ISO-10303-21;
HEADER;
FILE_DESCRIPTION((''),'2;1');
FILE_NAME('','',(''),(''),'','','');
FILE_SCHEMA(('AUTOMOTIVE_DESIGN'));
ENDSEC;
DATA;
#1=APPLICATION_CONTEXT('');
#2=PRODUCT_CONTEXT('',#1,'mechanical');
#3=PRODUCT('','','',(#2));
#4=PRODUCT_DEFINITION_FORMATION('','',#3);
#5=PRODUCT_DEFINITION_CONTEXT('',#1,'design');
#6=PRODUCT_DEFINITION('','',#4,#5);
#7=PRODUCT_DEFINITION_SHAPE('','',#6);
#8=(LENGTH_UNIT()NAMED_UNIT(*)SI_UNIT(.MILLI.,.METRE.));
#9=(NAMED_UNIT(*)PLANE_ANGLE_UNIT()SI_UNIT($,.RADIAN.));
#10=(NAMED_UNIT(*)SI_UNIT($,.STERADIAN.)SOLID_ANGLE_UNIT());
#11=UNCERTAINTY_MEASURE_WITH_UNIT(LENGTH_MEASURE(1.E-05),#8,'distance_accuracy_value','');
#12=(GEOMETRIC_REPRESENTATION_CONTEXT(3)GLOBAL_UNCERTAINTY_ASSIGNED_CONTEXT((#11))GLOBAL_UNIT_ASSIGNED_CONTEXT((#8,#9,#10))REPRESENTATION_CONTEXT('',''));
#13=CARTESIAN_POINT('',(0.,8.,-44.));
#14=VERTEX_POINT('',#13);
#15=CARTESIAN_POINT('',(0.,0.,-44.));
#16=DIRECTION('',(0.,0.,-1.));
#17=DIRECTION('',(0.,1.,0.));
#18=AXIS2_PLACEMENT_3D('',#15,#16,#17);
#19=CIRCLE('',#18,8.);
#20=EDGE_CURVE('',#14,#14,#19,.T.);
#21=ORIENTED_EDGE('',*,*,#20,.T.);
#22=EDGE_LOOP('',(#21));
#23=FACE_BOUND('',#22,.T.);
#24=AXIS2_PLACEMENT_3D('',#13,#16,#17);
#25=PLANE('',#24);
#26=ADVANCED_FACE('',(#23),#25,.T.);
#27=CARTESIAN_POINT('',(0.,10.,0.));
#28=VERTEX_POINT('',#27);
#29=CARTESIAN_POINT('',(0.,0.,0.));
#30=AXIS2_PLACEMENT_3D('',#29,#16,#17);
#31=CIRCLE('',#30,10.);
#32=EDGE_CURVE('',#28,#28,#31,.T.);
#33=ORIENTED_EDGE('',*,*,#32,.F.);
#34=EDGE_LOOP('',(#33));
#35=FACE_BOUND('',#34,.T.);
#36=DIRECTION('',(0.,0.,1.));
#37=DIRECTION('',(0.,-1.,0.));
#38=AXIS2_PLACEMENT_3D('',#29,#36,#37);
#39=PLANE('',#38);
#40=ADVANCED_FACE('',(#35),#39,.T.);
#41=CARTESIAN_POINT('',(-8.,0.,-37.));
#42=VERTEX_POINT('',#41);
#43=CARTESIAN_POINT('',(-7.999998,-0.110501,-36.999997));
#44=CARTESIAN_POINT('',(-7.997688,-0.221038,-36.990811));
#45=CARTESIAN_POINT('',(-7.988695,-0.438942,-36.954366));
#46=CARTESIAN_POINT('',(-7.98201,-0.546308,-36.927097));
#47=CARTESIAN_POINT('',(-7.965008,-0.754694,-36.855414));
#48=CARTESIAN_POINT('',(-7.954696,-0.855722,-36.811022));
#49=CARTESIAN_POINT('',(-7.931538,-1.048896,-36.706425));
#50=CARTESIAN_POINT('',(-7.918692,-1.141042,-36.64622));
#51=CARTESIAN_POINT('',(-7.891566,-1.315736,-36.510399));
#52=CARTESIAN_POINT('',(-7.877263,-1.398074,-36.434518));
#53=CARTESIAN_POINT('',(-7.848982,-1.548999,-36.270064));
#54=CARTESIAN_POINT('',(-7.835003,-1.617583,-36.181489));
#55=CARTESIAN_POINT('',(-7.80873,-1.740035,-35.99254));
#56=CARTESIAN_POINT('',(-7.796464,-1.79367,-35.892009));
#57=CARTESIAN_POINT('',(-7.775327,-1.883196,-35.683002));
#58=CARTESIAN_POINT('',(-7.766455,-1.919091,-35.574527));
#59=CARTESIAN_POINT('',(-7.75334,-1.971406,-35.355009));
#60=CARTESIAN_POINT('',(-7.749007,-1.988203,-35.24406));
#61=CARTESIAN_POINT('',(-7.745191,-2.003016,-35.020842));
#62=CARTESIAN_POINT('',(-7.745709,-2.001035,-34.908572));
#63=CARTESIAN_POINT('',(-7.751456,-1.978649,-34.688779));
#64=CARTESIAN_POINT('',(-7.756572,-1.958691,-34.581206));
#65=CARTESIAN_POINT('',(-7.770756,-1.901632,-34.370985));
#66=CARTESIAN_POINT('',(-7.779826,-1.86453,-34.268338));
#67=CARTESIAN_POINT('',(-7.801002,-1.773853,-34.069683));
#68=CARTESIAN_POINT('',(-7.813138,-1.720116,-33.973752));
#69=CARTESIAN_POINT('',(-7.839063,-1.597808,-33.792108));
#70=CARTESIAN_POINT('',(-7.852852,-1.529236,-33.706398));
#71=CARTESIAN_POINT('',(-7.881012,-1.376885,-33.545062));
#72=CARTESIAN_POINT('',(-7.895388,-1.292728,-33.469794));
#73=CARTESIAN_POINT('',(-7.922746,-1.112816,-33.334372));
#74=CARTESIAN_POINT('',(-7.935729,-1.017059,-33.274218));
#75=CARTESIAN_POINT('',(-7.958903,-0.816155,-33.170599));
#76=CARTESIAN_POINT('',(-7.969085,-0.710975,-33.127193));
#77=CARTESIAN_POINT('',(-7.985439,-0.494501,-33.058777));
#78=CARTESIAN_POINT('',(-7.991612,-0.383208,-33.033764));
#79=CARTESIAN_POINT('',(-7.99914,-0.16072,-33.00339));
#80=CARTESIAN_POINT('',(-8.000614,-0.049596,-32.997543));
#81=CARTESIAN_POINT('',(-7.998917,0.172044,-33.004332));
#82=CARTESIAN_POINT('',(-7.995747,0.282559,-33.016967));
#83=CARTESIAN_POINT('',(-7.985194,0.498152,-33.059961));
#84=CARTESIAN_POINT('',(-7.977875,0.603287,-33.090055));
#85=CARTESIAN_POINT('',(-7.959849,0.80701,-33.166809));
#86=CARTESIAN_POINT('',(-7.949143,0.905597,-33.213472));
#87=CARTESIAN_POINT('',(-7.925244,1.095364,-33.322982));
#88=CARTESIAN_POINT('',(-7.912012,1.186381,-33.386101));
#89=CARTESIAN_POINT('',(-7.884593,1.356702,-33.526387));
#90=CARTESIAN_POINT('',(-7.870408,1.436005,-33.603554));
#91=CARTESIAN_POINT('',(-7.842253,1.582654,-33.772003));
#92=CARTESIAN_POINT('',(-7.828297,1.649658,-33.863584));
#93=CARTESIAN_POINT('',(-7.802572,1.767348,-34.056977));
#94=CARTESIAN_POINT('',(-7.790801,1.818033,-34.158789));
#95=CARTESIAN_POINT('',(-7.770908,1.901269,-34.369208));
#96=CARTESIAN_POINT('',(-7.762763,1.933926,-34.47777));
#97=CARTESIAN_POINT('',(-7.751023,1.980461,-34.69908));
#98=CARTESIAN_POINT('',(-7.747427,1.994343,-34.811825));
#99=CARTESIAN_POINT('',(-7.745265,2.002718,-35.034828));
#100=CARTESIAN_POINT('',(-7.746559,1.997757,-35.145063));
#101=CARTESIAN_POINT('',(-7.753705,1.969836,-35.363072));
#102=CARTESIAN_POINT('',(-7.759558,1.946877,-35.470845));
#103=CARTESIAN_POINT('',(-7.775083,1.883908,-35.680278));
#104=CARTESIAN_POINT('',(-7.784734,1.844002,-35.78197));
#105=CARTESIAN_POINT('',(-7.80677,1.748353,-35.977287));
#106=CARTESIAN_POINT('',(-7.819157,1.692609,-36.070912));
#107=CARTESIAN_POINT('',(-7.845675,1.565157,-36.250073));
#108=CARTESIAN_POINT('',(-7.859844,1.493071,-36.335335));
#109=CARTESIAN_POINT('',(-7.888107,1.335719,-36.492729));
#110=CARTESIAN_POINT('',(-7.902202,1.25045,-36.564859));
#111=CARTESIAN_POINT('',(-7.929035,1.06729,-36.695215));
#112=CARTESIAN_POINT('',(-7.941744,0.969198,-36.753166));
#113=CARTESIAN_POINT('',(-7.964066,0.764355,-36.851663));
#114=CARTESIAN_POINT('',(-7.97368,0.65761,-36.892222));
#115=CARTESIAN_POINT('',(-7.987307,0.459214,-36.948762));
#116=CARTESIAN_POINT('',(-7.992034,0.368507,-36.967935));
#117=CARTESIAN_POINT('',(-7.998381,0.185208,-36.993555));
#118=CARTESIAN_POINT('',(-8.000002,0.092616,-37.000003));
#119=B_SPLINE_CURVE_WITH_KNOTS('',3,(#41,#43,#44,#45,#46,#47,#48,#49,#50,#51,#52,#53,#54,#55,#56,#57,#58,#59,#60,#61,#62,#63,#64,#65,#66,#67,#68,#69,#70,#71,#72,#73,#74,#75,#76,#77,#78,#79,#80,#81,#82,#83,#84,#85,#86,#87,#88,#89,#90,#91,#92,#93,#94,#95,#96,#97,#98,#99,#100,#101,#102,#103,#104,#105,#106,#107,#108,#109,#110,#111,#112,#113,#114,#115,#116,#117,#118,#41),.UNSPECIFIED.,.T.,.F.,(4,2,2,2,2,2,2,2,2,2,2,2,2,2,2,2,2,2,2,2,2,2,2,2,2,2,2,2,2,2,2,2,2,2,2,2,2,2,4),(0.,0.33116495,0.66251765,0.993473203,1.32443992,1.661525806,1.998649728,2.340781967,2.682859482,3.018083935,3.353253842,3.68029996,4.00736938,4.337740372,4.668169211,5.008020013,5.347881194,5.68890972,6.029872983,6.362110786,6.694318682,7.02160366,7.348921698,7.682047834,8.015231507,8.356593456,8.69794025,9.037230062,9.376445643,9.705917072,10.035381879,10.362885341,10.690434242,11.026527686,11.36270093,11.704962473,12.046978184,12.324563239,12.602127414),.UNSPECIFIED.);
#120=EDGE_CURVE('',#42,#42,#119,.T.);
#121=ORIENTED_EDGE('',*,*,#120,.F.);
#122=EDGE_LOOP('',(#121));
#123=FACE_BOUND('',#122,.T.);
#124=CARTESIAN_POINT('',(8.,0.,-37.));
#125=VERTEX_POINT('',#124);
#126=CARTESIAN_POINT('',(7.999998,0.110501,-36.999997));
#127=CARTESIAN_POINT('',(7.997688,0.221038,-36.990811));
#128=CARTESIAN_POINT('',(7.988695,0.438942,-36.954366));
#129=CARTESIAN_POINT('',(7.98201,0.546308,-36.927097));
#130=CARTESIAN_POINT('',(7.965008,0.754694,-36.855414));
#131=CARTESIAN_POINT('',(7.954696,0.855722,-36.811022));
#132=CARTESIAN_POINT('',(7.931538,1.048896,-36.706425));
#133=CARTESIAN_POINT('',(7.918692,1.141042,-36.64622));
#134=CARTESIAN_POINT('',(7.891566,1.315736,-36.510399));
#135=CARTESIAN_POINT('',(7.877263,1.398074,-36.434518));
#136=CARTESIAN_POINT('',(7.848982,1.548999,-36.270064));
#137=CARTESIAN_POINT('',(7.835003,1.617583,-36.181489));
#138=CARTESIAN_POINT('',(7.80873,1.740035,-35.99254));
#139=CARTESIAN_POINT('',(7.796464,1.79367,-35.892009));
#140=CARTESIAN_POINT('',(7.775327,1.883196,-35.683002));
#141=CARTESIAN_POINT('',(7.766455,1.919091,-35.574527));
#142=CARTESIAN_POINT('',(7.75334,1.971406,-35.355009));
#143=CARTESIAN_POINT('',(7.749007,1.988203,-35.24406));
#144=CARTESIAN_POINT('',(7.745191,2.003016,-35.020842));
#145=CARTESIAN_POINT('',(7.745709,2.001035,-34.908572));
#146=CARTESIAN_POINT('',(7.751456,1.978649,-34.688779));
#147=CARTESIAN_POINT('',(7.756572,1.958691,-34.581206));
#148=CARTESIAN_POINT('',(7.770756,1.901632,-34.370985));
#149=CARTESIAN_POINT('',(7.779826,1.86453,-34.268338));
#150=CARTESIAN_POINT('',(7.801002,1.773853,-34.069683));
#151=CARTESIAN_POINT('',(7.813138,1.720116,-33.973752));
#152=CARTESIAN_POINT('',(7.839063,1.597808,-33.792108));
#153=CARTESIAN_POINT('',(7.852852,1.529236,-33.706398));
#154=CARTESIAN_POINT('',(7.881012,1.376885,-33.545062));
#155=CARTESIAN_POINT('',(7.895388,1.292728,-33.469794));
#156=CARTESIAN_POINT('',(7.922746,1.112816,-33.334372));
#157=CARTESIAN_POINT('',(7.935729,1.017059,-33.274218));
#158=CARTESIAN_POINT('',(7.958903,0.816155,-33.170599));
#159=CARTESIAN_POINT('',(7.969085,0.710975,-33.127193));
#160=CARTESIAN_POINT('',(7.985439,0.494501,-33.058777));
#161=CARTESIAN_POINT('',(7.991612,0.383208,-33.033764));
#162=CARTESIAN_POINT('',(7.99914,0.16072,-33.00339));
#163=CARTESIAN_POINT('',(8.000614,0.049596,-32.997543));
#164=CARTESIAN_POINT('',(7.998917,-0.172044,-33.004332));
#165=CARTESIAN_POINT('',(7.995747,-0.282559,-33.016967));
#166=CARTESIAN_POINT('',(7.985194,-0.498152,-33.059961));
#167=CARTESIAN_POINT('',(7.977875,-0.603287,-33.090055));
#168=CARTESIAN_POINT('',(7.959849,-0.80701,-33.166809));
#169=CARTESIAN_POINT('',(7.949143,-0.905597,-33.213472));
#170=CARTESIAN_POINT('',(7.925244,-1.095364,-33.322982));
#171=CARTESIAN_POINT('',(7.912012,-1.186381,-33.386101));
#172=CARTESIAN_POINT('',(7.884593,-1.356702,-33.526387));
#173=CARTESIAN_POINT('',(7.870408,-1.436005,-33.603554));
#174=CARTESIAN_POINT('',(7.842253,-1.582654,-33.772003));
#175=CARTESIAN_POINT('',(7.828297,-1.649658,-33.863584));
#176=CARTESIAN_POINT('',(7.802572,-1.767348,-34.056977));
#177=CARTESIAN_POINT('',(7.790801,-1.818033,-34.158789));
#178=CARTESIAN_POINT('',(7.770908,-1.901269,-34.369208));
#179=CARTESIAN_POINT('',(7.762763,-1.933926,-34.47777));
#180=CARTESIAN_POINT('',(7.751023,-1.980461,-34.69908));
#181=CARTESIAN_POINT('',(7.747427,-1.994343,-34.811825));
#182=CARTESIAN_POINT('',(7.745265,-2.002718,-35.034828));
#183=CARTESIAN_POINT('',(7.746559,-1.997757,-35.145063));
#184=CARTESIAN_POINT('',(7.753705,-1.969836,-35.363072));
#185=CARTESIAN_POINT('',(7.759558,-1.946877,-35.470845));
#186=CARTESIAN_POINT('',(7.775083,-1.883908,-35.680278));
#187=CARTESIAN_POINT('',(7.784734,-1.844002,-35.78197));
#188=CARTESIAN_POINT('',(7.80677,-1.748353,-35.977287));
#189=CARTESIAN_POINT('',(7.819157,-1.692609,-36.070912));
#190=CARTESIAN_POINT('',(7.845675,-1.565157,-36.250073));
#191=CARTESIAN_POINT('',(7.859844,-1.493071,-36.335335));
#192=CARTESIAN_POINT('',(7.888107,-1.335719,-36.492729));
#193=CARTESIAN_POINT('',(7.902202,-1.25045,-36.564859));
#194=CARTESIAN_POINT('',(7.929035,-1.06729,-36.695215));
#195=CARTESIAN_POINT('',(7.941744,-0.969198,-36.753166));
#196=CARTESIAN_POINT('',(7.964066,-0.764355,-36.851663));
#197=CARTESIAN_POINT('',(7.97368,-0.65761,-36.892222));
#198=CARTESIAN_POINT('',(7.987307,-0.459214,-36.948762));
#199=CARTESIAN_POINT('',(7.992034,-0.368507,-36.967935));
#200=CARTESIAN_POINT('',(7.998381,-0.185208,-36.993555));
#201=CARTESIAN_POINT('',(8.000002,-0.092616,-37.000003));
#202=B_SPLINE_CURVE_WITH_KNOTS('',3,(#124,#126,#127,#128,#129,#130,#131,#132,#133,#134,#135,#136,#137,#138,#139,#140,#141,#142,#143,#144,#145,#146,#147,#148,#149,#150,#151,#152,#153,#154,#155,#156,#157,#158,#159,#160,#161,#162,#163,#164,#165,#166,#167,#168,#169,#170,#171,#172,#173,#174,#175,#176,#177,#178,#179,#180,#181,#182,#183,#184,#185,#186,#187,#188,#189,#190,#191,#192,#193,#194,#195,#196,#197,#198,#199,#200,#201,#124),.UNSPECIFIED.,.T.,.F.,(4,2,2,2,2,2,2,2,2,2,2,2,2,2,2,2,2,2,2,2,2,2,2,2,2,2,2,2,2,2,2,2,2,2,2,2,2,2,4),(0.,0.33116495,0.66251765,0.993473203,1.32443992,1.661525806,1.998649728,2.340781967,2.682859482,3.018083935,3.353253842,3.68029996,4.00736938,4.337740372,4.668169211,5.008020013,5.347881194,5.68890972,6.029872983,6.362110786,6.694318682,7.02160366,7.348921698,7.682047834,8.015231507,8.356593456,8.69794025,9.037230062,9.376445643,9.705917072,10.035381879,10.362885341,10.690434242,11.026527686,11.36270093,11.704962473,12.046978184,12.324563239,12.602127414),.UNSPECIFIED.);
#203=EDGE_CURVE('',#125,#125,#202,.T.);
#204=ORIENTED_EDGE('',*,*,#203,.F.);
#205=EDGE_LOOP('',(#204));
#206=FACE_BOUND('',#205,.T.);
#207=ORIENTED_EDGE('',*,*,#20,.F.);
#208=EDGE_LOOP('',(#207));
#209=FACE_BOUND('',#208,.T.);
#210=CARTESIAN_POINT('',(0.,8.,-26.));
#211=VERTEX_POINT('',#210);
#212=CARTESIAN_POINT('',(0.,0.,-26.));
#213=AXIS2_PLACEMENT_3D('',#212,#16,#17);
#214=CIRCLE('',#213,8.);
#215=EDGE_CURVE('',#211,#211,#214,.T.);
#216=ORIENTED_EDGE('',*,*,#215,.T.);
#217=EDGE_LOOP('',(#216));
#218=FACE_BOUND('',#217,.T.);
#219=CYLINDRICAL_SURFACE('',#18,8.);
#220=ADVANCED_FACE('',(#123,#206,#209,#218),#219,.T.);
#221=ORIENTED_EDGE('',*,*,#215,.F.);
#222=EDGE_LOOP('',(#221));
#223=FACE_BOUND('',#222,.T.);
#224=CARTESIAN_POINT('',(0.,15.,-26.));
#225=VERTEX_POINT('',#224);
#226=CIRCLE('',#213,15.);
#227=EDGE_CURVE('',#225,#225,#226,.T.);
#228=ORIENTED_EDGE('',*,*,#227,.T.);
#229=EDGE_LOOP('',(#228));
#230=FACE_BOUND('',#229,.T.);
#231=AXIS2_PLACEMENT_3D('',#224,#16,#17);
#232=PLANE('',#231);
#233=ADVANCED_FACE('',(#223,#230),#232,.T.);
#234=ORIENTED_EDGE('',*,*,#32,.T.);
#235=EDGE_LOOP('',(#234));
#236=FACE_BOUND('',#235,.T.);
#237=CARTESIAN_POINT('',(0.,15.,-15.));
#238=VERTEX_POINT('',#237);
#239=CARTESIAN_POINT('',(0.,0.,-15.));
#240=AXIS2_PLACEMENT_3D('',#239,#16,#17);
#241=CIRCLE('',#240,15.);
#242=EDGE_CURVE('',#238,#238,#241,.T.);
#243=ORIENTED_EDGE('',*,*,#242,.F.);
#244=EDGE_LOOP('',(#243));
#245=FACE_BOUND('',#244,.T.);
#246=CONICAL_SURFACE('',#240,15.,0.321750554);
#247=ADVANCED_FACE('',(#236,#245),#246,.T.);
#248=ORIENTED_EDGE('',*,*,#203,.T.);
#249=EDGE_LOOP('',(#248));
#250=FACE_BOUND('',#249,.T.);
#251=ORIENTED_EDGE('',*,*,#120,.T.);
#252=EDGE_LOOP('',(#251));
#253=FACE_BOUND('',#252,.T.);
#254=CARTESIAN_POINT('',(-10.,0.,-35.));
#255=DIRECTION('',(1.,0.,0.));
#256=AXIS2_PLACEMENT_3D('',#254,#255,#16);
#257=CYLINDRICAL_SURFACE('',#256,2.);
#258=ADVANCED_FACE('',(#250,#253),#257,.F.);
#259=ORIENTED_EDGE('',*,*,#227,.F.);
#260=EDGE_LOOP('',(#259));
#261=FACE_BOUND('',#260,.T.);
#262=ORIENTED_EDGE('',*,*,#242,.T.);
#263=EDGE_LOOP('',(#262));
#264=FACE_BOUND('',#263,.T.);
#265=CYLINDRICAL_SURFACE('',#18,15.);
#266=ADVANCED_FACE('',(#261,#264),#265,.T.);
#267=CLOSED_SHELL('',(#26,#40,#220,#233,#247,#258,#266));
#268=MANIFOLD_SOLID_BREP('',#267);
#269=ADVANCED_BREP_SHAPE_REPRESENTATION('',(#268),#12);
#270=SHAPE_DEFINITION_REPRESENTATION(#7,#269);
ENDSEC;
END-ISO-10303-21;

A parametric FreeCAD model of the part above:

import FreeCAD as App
import Part
import Sketcher
from FreeCAD import Vector
Q = App.Units.Quantity


def add_polygon(sketch, points):
    """Adds a closed chain of lines whose ends are joined by coincident constraints."""
    first, n = sketch.GeometryCount, len(points)
    for a, b in zip(points, points[1:] + points[:1]):
        sketch.addGeometry(Part.LineSegment(App.Vector(*a, 0), App.Vector(*b, 0)), False)
    for i in range(n):
        sketch.addConstraint(Sketcher.Constraint("Coincident", first + i, 2, first + (i + 1) % n, 1))

doc = App.newDocument("Part")
params = doc.addObject("Spreadsheet::Sheet", "Params")
for row, (alias, value) in enumerate([
    ("sketch1_width", "10 mm"),
    ("sketch1_width2", "8 mm"),
    ("sketch1_width3", "7 mm"),
    ("sketch1_height", "44 mm"),
    ("sketch1_height2", "18 mm"),
    ("revolution_angle", "360 deg"),
    ("sketch2_diameter", "4 mm"),
    ("pocket1_length", "20 mm"),
], start=1):
    params.set(f"A{row}", alias)
    params.set(f"B{row}", "=" + value)
    params.setAlias(f"B{row}", alias)

body = doc.addObject("PartDesign::Body", "Body")

sketch1 = body.newObject("Sketcher::SketchObject", "Sketch")
sketch1.AttachmentSupport = (doc.getObject("YZ_Plane"), [""])
sketch1.MapMode = "FlatFace"
add_polygon(sketch1, [(10, 0), (0, 0), (0, -44), (8, -44), (8, -26), (15, -26), (15, -15)])
sketch1.addConstraint([
    Sketcher.Constraint("Horizontal", 0),
    Sketcher.Constraint("Vertical", 1),
    Sketcher.Constraint("Horizontal", 2),
    Sketcher.Constraint("Vertical", 3),
    Sketcher.Constraint("Horizontal", 4),
    Sketcher.Constraint("Vertical", 5),
    Sketcher.Constraint("Coincident", 0, 2, -1, 1),
    Sketcher.Constraint("DistanceX", 0, 2, 0, 1, Q("10 mm")),
    Sketcher.Constraint("DistanceX", 2, 1, 2, 2, Q("8 mm")),
    Sketcher.Constraint("DistanceX", 4, 1, 4, 2, Q("7 mm")),
    Sketcher.Constraint("DistanceY", 1, 2, 1, 1, Q("44 mm")),
    Sketcher.Constraint("DistanceY", 3, 1, 3, 2, Q("18 mm")),
    Sketcher.Constraint("DistanceY", 5, 1, 5, 2, Q("11 mm")),
])
sketch1.setExpression("Constraints[14]", "Params.sketch1_width")
sketch1.setExpression("Constraints[15]", "Params.sketch1_width2")
sketch1.setExpression("Constraints[16]", "Params.sketch1_width3")
sketch1.setExpression("Constraints[17]", "Params.sketch1_height")
sketch1.setExpression("Constraints[18]", "Params.sketch1_height2")
revolution = body.newObject("PartDesign::Revolution", "Revolution")
revolution.Profile = sketch1
revolution.ReferenceAxis = (sketch1, ["V_Axis"])
revolution.setExpression("Angle", "Params.revolution_angle")

sketch2 = body.newObject("Sketcher::SketchObject", "Sketch001")
sketch2.AttachmentSupport = (doc.getObject("YZ_Plane"), [""])
sketch2.MapMode = "FlatFace"
sketch2.addGeometry(Part.Circle(Vector(0, -35, 0), Vector(0, 0, 1), 2), False)
sketch2.addConstraint([
    Sketcher.Constraint("PointOnObject", 0, 3, -2),
    Sketcher.Constraint("Diameter", 0, Q("4 mm")),
    Sketcher.Constraint("DistanceY", 0, 3, -1, 1, Q("35 mm")),
])
sketch2.setExpression("Constraints[1]", "Params.sketch2_diameter")
pocket1 = body.newObject("PartDesign::Pocket", "Pocket")
pocket1.Profile = sketch2
pocket1.setExpression("Length", "Params.pocket1_length")
pocket1.Midplane = True

doc.recompute()
